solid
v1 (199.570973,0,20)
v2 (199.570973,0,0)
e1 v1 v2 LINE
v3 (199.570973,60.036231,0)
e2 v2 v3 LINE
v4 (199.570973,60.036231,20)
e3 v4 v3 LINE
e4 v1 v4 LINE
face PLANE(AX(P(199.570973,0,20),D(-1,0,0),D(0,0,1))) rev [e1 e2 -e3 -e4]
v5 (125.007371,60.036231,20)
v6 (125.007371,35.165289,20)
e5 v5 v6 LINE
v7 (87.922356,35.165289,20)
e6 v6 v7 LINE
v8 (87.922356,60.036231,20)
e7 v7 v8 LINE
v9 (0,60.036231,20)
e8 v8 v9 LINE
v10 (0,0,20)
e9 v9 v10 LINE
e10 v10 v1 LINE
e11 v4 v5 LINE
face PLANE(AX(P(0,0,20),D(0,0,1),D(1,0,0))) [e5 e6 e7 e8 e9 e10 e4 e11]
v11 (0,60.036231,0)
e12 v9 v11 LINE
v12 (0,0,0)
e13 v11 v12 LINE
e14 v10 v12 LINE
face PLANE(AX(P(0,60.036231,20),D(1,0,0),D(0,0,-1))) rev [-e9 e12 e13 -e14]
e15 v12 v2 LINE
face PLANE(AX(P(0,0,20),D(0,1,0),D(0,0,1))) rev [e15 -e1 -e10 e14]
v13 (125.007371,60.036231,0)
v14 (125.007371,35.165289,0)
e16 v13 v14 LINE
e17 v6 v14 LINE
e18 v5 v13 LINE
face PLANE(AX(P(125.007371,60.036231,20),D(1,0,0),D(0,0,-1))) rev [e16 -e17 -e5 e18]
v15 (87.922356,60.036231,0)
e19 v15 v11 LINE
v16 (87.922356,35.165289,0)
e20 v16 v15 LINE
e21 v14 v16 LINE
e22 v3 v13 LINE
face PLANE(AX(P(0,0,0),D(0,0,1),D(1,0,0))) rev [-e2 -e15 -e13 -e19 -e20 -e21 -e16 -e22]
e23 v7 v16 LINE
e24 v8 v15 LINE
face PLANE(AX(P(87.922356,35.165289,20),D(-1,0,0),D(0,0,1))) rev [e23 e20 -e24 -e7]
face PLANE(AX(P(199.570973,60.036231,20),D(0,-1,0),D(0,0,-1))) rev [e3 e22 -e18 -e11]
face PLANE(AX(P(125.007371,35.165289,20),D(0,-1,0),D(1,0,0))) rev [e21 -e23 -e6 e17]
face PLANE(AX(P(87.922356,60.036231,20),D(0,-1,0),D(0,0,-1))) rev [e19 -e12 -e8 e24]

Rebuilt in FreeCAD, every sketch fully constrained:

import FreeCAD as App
import Part
import Sketcher

doc = App.newDocument("Part")
body = doc.addObject("PartDesign::Body", "Body")

sketch1 = body.newObject("Sketcher::SketchObject", "Sketch")
sketch1.AttachmentSupport = (doc.getObject("XY_Plane"), [""])
sketch1.MapMode = "FlatFace"
sketch1.addGeometry([
    Part.LineSegment(App.Vector(0, 0, 0), App.Vector(200, 0, 0)),
    Part.LineSegment(App.Vector(200, 0, 0), App.Vector(200, 60, 0)),
    Part.LineSegment(App.Vector(200, 60, 0), App.Vector(125, 60, 0)),
    Part.LineSegment(App.Vector(125, 60, 0), App.Vector(125, 35, 0)),
    Part.LineSegment(App.Vector(125, 35, 0), App.Vector(88, 35, 0)),
    Part.LineSegment(App.Vector(88, 35, 0), App.Vector(88, 60, 0)),
    Part.LineSegment(App.Vector(88, 60, 0), App.Vector(0, 60, 0)),
    Part.LineSegment(App.Vector(0, 60, 0), App.Vector(0, 0, 0)),
], False)
sketch1.addConstraint([
    Sketcher.Constraint("Coincident", 0, 2, 1, 1),
    Sketcher.Constraint("Coincident", 1, 2, 2, 1),
    Sketcher.Constraint("Coincident", 2, 2, 3, 1),
    Sketcher.Constraint("Coincident", 3, 2, 4, 1),
    Sketcher.Constraint("Coincident", 4, 2, 5, 1),
    Sketcher.Constraint("Coincident", 5, 2, 6, 1),
    Sketcher.Constraint("Coincident", 6, 2, 7, 1),
    Sketcher.Constraint("Coincident", 7, 2, 0, 1),
    Sketcher.Constraint("Horizontal", 0),
    Sketcher.Constraint("Vertical", 1),
    Sketcher.Constraint("Horizontal", 2),
    Sketcher.Constraint("Vertical", 3),
    Sketcher.Constraint("Horizontal", 4),
    Sketcher.Constraint("Vertical", 5),
    Sketcher.Constraint("Horizontal", 6),
    Sketcher.Constraint("Vertical", 7),
    Sketcher.Constraint("Coincident", 7, 2, -1, 1),
    Sketcher.Constraint("Horizontal", 2, 2, 5, 2),
    Sketcher.Constraint("DistanceX", 2, 2, 2, 1, 74.563602),
    Sketcher.Constraint("DistanceY", 1, 1, 1, 2, 60.036231),
    Sketcher.Constraint("DistanceY", 3, 2, 3, 1, 24.870942),
    Sketcher.Constraint("DistanceX", 0, 1, 0, 2, 199.570973),
    Sketcher.Constraint("DistanceX", 4, 2, 4, 1, 37.085015),
])
pad1 = body.newObject("PartDesign::Pad", "Pad")
pad1.Profile = sketch1
pad1.Length = 20

doc.recompute()
